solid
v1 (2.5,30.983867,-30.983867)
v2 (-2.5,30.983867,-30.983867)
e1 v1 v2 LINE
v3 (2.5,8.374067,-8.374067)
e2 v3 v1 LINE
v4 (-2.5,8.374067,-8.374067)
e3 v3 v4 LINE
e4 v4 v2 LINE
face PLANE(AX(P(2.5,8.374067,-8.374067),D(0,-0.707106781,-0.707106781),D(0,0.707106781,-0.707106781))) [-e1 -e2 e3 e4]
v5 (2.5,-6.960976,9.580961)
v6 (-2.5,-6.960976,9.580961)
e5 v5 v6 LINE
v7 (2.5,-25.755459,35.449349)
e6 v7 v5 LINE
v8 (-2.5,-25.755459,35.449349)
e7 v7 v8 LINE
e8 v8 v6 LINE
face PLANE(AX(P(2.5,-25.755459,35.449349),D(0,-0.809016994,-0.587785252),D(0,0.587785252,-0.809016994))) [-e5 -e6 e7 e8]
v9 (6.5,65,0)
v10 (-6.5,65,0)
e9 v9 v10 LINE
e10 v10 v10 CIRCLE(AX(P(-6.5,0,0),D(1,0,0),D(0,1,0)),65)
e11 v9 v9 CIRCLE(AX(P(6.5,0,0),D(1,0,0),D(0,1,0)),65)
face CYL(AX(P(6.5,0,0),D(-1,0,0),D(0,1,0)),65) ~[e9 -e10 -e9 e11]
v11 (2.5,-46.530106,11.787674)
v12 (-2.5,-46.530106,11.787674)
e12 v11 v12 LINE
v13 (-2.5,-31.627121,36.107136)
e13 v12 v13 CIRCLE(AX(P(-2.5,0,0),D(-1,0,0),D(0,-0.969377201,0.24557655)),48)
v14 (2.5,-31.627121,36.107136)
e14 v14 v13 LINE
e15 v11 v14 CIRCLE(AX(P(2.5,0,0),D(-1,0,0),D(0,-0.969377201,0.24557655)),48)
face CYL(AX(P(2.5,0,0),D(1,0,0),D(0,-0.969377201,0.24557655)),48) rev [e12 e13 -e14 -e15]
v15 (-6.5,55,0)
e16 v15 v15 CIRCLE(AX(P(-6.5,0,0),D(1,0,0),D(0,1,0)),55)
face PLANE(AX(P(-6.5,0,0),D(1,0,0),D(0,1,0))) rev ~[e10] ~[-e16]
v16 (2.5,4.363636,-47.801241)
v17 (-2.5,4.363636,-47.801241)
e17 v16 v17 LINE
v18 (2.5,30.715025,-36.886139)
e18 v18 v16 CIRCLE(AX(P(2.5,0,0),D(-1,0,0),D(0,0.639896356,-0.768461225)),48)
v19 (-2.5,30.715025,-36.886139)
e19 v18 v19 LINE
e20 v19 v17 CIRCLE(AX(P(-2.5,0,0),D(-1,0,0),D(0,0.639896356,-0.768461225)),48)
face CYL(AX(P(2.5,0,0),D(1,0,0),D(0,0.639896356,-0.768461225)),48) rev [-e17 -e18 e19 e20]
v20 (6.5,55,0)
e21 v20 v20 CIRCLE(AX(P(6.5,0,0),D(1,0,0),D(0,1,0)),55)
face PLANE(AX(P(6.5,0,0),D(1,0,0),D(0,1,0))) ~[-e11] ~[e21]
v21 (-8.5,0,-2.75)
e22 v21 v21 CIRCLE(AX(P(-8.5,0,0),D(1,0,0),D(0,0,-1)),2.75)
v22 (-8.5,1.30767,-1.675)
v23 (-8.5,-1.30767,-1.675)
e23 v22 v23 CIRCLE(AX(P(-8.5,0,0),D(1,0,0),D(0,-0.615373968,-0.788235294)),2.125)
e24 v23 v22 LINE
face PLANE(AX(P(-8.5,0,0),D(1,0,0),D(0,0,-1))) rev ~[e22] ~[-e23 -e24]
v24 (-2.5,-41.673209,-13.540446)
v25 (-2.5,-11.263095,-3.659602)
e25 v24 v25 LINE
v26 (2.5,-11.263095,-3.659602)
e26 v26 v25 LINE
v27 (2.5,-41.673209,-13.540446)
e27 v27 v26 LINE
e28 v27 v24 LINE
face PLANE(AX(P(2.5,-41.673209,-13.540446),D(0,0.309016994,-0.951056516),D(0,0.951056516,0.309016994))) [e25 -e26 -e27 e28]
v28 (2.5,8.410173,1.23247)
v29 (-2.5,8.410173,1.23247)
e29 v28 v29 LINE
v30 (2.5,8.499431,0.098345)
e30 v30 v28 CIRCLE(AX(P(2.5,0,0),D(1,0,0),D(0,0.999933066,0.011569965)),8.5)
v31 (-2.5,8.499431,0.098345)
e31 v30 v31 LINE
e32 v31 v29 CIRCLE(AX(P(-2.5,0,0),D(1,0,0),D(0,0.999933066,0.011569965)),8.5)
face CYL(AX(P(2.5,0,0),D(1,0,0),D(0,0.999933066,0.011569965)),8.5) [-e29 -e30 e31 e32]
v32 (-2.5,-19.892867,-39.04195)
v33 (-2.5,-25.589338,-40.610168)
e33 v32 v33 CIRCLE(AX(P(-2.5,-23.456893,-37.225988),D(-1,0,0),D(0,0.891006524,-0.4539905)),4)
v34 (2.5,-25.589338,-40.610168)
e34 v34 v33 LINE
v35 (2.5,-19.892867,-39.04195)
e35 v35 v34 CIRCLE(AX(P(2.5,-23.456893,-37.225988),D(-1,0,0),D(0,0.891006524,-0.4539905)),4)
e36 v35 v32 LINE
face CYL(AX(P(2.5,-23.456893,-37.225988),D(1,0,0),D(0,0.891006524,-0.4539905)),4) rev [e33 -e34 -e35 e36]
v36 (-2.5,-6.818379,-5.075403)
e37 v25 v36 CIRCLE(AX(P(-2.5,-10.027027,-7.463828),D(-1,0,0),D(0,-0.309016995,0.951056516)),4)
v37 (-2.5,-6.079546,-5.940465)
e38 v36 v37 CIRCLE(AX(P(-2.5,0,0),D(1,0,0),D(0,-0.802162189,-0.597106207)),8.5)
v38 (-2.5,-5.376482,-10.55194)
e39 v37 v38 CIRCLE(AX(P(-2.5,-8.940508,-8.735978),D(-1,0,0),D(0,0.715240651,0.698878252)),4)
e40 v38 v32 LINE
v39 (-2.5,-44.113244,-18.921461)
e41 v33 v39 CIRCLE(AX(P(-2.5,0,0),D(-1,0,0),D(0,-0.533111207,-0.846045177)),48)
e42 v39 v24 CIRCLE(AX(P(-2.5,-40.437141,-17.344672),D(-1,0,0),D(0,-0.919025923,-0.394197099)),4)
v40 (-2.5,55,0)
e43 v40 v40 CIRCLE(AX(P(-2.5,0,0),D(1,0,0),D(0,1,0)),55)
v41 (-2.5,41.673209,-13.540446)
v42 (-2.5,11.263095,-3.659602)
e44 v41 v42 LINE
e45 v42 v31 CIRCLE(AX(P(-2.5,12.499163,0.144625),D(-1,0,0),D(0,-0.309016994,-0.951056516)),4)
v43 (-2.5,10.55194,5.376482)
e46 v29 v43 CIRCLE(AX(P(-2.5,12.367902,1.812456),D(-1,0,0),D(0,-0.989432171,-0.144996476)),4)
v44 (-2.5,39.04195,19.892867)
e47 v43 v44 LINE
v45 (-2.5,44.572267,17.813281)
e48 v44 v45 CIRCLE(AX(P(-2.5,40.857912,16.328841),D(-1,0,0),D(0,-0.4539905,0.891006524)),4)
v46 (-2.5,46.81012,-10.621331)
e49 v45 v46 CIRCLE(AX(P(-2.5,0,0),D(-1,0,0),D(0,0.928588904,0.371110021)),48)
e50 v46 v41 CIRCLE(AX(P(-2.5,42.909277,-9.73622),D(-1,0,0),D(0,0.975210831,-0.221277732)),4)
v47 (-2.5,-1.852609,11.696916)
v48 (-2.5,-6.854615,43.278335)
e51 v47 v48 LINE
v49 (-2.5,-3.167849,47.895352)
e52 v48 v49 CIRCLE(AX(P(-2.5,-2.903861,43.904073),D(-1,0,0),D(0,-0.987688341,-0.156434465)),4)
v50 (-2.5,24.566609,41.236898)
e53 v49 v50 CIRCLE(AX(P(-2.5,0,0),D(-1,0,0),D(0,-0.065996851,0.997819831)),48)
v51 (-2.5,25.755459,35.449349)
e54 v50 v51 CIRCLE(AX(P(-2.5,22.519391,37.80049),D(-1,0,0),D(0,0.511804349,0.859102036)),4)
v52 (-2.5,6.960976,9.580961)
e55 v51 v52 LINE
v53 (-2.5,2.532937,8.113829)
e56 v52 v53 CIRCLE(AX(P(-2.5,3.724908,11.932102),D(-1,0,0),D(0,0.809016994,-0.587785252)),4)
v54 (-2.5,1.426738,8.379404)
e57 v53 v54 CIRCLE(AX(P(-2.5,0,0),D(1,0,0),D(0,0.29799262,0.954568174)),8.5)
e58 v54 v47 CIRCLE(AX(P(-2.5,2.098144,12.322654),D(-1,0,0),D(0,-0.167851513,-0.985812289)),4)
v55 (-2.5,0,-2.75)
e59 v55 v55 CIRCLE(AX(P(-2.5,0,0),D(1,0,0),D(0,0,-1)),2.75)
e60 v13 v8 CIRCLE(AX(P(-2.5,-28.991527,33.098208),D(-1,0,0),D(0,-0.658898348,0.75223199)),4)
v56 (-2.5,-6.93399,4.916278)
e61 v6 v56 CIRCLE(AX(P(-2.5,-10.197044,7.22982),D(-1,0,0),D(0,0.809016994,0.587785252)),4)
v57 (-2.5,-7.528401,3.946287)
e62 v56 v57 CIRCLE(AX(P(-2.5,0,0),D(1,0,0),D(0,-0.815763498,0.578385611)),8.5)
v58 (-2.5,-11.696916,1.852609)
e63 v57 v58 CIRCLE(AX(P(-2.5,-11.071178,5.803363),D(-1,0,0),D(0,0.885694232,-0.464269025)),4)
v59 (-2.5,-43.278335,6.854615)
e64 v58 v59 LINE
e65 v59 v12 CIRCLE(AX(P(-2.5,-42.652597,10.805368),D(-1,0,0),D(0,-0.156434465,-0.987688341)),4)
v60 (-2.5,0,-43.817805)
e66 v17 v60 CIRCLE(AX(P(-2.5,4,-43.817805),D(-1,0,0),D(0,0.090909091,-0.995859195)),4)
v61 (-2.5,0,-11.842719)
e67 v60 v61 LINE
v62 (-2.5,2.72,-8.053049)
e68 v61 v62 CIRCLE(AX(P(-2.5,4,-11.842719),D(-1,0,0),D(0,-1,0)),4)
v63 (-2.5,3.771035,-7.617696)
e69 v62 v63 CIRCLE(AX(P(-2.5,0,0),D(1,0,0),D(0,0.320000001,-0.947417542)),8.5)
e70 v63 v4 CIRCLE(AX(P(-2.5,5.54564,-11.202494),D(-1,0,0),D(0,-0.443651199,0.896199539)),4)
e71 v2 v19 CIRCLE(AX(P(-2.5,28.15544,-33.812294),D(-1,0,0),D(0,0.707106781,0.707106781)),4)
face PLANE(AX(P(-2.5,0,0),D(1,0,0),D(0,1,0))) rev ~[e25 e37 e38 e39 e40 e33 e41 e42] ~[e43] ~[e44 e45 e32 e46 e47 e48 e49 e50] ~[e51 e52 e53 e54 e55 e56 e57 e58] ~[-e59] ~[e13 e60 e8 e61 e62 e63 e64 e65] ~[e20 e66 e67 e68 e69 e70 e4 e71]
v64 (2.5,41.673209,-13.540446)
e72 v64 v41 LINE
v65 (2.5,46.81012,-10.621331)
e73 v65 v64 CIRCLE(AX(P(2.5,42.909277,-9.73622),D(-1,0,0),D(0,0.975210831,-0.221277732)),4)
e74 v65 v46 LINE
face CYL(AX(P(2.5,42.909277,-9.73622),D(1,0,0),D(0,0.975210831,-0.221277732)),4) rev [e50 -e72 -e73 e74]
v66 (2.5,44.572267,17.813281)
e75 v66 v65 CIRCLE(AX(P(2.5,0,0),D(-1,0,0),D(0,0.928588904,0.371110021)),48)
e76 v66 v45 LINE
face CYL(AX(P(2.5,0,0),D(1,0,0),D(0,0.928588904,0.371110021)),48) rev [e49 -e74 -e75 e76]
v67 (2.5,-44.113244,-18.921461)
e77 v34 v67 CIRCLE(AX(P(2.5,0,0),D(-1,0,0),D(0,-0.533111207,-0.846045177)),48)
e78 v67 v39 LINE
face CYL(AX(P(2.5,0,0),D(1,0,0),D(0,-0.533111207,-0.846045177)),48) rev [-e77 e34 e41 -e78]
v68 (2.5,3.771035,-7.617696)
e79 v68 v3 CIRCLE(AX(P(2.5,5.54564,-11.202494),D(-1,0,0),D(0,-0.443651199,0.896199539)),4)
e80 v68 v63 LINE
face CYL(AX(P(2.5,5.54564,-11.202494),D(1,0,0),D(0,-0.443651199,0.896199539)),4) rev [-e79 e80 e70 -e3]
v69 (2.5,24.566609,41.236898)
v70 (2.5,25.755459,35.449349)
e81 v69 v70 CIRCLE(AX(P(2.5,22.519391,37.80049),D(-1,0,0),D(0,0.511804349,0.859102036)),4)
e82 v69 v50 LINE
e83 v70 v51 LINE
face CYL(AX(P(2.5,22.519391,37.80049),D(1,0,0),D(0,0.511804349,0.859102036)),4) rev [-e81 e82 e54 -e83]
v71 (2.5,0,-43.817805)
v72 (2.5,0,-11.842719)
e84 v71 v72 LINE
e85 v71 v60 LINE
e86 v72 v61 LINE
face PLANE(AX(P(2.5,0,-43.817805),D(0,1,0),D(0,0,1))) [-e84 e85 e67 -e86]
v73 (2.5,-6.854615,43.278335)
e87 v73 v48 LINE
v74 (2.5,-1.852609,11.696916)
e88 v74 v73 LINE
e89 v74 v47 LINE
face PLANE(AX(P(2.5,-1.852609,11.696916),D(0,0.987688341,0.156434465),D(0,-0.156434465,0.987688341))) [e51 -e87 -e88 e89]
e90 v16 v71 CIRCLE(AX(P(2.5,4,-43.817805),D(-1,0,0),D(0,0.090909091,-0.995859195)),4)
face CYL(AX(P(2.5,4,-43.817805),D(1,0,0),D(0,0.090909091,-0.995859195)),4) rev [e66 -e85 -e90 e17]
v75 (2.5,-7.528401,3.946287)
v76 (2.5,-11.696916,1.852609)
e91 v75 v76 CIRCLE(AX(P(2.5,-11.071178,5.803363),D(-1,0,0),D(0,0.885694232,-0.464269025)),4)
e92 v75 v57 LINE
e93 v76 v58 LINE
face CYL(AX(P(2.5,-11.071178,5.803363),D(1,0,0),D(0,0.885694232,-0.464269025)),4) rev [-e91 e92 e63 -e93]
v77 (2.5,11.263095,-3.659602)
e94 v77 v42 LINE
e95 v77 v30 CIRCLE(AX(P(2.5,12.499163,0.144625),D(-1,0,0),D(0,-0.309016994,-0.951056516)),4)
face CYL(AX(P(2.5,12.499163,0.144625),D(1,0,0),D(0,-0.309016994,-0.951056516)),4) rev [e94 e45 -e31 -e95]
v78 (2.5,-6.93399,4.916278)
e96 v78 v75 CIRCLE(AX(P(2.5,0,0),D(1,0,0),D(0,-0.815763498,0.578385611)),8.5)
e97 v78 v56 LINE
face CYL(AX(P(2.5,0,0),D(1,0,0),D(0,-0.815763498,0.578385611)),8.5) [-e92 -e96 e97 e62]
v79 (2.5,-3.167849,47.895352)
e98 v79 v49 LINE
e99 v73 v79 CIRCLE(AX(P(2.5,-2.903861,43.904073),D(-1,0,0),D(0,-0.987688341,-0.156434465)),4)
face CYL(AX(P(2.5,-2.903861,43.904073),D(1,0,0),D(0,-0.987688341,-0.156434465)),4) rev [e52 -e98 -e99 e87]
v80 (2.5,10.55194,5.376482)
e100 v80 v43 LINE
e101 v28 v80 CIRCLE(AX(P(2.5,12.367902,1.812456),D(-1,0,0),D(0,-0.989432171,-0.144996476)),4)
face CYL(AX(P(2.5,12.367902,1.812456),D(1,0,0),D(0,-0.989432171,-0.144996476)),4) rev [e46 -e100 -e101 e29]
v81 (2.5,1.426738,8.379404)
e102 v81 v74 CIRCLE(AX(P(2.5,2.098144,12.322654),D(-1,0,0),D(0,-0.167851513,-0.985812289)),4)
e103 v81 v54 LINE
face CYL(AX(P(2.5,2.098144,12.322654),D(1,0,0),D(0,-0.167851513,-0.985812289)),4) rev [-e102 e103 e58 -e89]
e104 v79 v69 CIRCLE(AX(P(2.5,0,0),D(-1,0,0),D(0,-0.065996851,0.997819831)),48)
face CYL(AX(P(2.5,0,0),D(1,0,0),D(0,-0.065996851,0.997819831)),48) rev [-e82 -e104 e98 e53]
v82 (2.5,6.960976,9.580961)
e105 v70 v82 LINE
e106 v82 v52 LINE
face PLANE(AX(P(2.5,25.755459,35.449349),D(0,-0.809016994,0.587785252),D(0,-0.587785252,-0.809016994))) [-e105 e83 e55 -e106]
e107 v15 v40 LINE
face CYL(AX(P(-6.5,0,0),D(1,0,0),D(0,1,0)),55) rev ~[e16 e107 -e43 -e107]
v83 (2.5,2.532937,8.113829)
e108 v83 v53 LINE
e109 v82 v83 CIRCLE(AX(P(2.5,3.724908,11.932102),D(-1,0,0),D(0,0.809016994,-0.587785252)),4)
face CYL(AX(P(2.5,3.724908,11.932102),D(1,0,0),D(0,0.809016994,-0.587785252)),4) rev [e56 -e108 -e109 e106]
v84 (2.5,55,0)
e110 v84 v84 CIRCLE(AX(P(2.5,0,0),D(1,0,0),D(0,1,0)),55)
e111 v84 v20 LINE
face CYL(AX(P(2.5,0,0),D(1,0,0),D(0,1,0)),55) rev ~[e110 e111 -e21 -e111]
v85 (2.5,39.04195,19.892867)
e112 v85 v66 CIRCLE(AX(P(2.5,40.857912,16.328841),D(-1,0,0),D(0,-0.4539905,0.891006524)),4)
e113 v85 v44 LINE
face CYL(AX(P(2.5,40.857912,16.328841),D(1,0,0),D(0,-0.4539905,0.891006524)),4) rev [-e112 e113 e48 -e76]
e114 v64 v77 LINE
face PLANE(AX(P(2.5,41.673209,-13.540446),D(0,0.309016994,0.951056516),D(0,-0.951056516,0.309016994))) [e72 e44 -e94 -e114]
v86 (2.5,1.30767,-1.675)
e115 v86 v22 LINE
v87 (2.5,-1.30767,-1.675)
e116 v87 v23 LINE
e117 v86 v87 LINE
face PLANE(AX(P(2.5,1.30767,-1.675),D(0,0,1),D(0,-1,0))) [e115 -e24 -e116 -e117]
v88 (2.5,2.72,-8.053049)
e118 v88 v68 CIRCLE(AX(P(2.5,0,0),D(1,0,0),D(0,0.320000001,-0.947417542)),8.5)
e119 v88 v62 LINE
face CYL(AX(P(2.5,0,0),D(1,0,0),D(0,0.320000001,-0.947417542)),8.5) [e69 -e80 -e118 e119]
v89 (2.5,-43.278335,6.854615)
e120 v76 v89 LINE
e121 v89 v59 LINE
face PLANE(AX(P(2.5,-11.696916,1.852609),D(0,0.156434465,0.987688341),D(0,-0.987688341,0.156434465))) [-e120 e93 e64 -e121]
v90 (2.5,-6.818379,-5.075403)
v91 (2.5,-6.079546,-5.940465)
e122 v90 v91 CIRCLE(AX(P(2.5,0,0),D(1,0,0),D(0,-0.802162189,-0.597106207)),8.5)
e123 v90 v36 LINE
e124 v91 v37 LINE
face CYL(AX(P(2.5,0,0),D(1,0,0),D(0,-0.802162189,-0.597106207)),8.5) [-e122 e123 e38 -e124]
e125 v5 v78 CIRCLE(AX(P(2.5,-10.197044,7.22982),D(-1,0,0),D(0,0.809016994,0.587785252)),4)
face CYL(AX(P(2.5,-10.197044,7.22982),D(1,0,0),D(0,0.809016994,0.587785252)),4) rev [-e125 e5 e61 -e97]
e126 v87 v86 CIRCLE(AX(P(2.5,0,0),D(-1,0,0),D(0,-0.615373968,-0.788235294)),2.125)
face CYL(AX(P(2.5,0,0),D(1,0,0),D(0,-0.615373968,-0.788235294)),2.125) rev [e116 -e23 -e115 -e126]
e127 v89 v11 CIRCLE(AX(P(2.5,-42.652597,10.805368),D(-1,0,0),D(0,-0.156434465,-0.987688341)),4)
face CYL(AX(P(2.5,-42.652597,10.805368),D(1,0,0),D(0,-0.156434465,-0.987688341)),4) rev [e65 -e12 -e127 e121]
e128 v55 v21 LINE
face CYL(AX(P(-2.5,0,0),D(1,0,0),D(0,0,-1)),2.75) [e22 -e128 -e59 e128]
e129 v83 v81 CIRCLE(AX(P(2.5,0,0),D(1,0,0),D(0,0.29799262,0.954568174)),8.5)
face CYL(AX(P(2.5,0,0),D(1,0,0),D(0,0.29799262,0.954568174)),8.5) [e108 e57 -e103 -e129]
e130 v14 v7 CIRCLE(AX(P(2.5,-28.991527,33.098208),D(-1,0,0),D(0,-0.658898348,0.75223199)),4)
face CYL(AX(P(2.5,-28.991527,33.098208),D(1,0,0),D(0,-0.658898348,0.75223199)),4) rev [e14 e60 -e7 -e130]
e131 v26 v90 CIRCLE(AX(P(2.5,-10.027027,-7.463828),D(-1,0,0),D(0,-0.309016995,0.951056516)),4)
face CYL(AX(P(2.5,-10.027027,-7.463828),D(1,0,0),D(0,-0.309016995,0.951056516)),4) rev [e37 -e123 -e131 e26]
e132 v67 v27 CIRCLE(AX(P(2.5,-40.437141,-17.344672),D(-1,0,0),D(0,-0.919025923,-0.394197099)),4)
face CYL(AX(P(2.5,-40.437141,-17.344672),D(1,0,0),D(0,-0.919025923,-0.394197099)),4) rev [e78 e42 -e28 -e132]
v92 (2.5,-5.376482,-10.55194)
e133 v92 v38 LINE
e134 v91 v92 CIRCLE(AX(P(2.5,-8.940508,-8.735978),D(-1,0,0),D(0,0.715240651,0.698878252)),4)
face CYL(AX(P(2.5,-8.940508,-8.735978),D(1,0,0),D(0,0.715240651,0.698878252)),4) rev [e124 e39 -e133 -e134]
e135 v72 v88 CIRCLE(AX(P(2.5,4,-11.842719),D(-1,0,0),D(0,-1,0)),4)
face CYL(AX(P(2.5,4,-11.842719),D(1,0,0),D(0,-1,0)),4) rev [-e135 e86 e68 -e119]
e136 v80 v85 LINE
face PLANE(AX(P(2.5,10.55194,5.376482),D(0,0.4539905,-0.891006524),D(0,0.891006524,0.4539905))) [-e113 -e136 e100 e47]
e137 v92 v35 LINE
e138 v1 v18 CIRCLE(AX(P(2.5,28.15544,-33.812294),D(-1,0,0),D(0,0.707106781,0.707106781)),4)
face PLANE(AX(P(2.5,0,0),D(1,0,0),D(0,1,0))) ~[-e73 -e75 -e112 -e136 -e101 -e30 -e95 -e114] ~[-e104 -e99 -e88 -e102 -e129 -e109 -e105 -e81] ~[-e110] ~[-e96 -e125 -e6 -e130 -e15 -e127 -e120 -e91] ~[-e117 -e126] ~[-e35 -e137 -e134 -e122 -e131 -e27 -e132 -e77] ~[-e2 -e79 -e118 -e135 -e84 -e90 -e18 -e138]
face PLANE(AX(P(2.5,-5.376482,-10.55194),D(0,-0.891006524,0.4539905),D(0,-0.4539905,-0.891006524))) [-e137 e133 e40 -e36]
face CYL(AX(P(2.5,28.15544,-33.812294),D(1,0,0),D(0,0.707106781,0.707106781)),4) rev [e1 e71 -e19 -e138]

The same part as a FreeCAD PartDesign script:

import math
import FreeCAD as App
import Part
import Sketcher
from FreeCAD import Vector
Q = App.Units.Quantity


def add_polygon(sketch, points):
    """Adds a closed chain of lines whose ends are joined by coincident constraints."""
    first, n = sketch.GeometryCount, len(points)
    for a, b in zip(points, points[1:] + points[:1]):
        sketch.addGeometry(Part.LineSegment(App.Vector(*a, 0), App.Vector(*b, 0)), False)
    for i in range(n):
        sketch.addConstraint(Sketcher.Constraint("Coincident", first + i, 2, first + (i + 1) % n, 1))

doc = App.newDocument("Part")
body = doc.addObject("PartDesign::Body", "Body")

# Sketch on XY plane
sketch1 = body.newObject("Sketcher::SketchObject", "Sketch")
sketch1.AttachmentSupport = (doc.getObject("XY_Plane"), [""])
sketch1.MapMode = "FlatFace"
add_polygon(sketch1, [(-2.5, 0), (2.5, 0), (2.5, 55), (6.5, 55), (6.5, 65), (-6.5, 65), (-6.5, 55), (-2.5, 55)])  # lines 0-7
sketch1.addConstraint(Sketcher.Constraint("Horizontal", 0))
sketch1.addConstraint(Sketcher.Constraint("Vertical", 1))
sketch1.addConstraint(Sketcher.Constraint("Horizontal", 2))
sketch1.addConstraint(Sketcher.Constraint("Vertical", 3))
sketch1.addConstraint(Sketcher.Constraint("Horizontal", 4))
sketch1.addConstraint(Sketcher.Constraint("Vertical", 5))
sketch1.addConstraint(Sketcher.Constraint("Horizontal", 6))
sketch1.addConstraint(Sketcher.Constraint("Vertical", 7))
sketch1.addConstraint(Sketcher.Constraint("Symmetric", 0, 2, 7, 2, -1, 1))
sketch1.addConstraint(Sketcher.Constraint("Symmetric", 2, 2, 5, 2, -2))
sketch1.addConstraint(Sketcher.Constraint("DistanceX", 0, 1, 0, 2, 5.0))
sketch1.addConstraint(Sketcher.Constraint("DistanceX", 2, 1, 2, 2, 4.0))
sketch1.addConstraint(Sketcher.Constraint("DistanceY", 1, 1, 1, 2, 55.0))
sketch1.addConstraint(Sketcher.Constraint("DistanceY", 3, 1, 3, 2, 10.0))
revolution = body.newObject("PartDesign::Revolution", "Revolution")
revolution.Profile = sketch1
revolution.ReferenceAxis = (sketch1, ["H_Axis"])
revolution.Angle = 360

# Sketch on YZ plane
sketch2 = body.newObject("Sketcher::SketchObject", "Sketch001")
sketch2.AttachmentSupport = (doc.getObject("YZ_Plane"), [""])
sketch2.MapMode = "FlatFace"
sketch2.AttachmentOffset = App.Placement(Vector(0, 0, 2.5), App.Rotation())
sketch2.addGeometry(Part.LineSegment(Vector(30.983867, -30.983867, 0), Vector(8.374067, -8.374067, 0)), False)
sketch2.addGeometry(Part.ArcOfCircle(Part.Circle(Vector(5.54564, -11.202494, 0), Vector(0, 0, 1), 4), math.radians(45), math.radians(116.337075)), False)
sketch2.addGeometry(Part.ArcOfCircle(Part.Circle(Vector(0, 0, 0), Vector(0, 0, 1), 8.5), math.radians(-71.337075), math.radians(-63.662925)), False)
sketch2.addGeometry(Part.ArcOfCircle(Part.Circle(Vector(4, -11.842719, 0), Vector(0, 0, 1), 4), math.radians(108.662925), math.radians(180)), False)
sketch2.addGeometry(Part.LineSegment(Vector(0, -11.842719, 0), Vector(0, -43.817805, 0)), False)
sketch2.addGeometry(Part.ArcOfCircle(Part.Circle(Vector(4, -43.817805, 0), Vector(0, 0, 1), 4), math.radians(180), math.radians(275.215909)), False)
sketch2.addGeometry(Part.ArcOfCircle(Part.Circle(Vector(0, 0, 0), Vector(0, 0, 1), 48), math.radians(-84.784091), math.radians(-50.215909)), False)
sketch2.addGeometry(Part.ArcOfCircle(Part.Circle(Vector(28.15544, -33.812294, 0), Vector(0, 0, 1), 4), math.radians(-50.215909), math.radians(45)), False)
sketch2.addConstraint(Sketcher.Constraint("Tangent", 0, 2, 1, 1))
sketch2.addConstraint(Sketcher.Constraint("Tangent", 1, 2, 2, 2))
sketch2.addConstraint(Sketcher.Constraint("Tangent", 2, 1, 3, 1))
sketch2.addConstraint(Sketcher.Constraint("Tangent", 3, 2, 4, 1))
sketch2.addConstraint(Sketcher.Constraint("Tangent", 4, 2, 5, 1))
sketch2.addConstraint(Sketcher.Constraint("Tangent", 5, 2, 6, 1))
sketch2.addConstraint(Sketcher.Constraint("Tangent", 6, 2, 7, 1))
sketch2.addConstraint(Sketcher.Constraint("Tangent", 7, 2, 0, 1))
sketch2.addConstraint(Sketcher.Constraint("Vertical", 4))
sketch2.addConstraint(Sketcher.Constraint("Coincident", 2, 3, -1, 1))
sketch2.addConstraint(Sketcher.Constraint("Coincident", 6, 3, -1, 1))
sketch2.addConstraint(Sketcher.Constraint("Equal", 1, 3))
sketch2.addConstraint(Sketcher.Constraint("Equal", 3, 5))
sketch2.addConstraint(Sketcher.Constraint("Equal", 5, 7))
sketch2.addConstraint(Sketcher.Constraint("PointOnObject", 3, 2, -2))
sketch2.addConstraint(Sketcher.Constraint("Radius", 1, 4.0))
sketch2.addConstraint(Sketcher.Constraint("Radius", 6, 48.0))
sketch2.addConstraint(Sketcher.Constraint("Radius", 2, 8.5))
sketch2.addConstraint(Sketcher.Constraint("Angle", 0, Q("135 deg")))
sketch2.addConstraint(Sketcher.Constraint("DistanceX", 1, 3, 7, 3, 22.6098))
pocket1 = body.newObject("PartDesign::Pocket", "Pocket")
pocket1.Profile = sketch2
pocket1.Length = 5
doc.recompute()

polarpattern = body.newObject("PartDesign::PolarPattern", "PolarPattern")
polarpattern.Originals = [pocket1]
polarpattern.Axis = (doc.getObject("X_Axis"), [""])
polarpattern.Angle = 360
polarpattern.Occurrences = 5
body.Tip = polarpattern

# Sketch on YZ plane
sketch3 = body.newObject("Sketcher::SketchObject", "Sketch002")
sketch3.AttachmentSupport = (doc.getObject("YZ_Plane"), [""])
sketch3.MapMode = "FlatFace"
sketch3.AttachmentOffset = App.Placement(Vector(0, 0, -2.5), App.Rotation())
sketch3.addGeometry(Part.Circle(Vector(0, 0, 0), Vector(0, 0, 1), 2.75), False)
sketch3.addConstraint(Sketcher.Constraint("Coincident", 0, 3, -1, 1))
sketch3.addConstraint(Sketcher.Constraint("Diameter", 0, 5.5))
pad1 = body.newObject("PartDesign::Pad", "Pad")
pad1.Profile = sketch3
pad1.Length = 6
pad1.Reversed = True

# Sketch on YZ plane
sketch4 = body.newObject("Sketcher::SketchObject", "Sketch003")
sketch4.AttachmentSupport = (doc.getObject("YZ_Plane"), [""])
sketch4.MapMode = "FlatFace"
sketch4.AttachmentOffset = App.Placement(Vector(0, 0, 2.5), App.Rotation())
sketch4.addGeometry(Part.LineSegment(Vector(-1.30767, -1.675, 0), Vector(1.30767, -1.675, 0)), False)
sketch4.addGeometry(Part.ArcOfCircle(Part.Circle(Vector(0, 0, 0), Vector(0, 0, 1), 2.125), math.radians(-52.020901), math.radians(232.020901)), False)
sketch4.addConstraint(Sketcher.Constraint("Coincident", 0, 1, 1, 2))
sketch4.addConstraint(Sketcher.Constraint("Coincident", 1, 1, 0, 2))
sketch4.addConstraint(Sketcher.Constraint("Horizontal", 0))
sketch4.addConstraint(Sketcher.Constraint("Coincident", 1, 3, -1, 1))
sketch4.addConstraint(Sketcher.Constraint("Radius", 1, 2.125))
sketch4.addConstraint(Sketcher.Constraint("DistanceY", 0, 1, -1, 1, 1.675))
pocket2 = body.newObject("PartDesign::Pocket", "Pocket001")
pocket2.Profile = sketch4
pocket2.Type = "UpToFirst"

doc.recompute()
